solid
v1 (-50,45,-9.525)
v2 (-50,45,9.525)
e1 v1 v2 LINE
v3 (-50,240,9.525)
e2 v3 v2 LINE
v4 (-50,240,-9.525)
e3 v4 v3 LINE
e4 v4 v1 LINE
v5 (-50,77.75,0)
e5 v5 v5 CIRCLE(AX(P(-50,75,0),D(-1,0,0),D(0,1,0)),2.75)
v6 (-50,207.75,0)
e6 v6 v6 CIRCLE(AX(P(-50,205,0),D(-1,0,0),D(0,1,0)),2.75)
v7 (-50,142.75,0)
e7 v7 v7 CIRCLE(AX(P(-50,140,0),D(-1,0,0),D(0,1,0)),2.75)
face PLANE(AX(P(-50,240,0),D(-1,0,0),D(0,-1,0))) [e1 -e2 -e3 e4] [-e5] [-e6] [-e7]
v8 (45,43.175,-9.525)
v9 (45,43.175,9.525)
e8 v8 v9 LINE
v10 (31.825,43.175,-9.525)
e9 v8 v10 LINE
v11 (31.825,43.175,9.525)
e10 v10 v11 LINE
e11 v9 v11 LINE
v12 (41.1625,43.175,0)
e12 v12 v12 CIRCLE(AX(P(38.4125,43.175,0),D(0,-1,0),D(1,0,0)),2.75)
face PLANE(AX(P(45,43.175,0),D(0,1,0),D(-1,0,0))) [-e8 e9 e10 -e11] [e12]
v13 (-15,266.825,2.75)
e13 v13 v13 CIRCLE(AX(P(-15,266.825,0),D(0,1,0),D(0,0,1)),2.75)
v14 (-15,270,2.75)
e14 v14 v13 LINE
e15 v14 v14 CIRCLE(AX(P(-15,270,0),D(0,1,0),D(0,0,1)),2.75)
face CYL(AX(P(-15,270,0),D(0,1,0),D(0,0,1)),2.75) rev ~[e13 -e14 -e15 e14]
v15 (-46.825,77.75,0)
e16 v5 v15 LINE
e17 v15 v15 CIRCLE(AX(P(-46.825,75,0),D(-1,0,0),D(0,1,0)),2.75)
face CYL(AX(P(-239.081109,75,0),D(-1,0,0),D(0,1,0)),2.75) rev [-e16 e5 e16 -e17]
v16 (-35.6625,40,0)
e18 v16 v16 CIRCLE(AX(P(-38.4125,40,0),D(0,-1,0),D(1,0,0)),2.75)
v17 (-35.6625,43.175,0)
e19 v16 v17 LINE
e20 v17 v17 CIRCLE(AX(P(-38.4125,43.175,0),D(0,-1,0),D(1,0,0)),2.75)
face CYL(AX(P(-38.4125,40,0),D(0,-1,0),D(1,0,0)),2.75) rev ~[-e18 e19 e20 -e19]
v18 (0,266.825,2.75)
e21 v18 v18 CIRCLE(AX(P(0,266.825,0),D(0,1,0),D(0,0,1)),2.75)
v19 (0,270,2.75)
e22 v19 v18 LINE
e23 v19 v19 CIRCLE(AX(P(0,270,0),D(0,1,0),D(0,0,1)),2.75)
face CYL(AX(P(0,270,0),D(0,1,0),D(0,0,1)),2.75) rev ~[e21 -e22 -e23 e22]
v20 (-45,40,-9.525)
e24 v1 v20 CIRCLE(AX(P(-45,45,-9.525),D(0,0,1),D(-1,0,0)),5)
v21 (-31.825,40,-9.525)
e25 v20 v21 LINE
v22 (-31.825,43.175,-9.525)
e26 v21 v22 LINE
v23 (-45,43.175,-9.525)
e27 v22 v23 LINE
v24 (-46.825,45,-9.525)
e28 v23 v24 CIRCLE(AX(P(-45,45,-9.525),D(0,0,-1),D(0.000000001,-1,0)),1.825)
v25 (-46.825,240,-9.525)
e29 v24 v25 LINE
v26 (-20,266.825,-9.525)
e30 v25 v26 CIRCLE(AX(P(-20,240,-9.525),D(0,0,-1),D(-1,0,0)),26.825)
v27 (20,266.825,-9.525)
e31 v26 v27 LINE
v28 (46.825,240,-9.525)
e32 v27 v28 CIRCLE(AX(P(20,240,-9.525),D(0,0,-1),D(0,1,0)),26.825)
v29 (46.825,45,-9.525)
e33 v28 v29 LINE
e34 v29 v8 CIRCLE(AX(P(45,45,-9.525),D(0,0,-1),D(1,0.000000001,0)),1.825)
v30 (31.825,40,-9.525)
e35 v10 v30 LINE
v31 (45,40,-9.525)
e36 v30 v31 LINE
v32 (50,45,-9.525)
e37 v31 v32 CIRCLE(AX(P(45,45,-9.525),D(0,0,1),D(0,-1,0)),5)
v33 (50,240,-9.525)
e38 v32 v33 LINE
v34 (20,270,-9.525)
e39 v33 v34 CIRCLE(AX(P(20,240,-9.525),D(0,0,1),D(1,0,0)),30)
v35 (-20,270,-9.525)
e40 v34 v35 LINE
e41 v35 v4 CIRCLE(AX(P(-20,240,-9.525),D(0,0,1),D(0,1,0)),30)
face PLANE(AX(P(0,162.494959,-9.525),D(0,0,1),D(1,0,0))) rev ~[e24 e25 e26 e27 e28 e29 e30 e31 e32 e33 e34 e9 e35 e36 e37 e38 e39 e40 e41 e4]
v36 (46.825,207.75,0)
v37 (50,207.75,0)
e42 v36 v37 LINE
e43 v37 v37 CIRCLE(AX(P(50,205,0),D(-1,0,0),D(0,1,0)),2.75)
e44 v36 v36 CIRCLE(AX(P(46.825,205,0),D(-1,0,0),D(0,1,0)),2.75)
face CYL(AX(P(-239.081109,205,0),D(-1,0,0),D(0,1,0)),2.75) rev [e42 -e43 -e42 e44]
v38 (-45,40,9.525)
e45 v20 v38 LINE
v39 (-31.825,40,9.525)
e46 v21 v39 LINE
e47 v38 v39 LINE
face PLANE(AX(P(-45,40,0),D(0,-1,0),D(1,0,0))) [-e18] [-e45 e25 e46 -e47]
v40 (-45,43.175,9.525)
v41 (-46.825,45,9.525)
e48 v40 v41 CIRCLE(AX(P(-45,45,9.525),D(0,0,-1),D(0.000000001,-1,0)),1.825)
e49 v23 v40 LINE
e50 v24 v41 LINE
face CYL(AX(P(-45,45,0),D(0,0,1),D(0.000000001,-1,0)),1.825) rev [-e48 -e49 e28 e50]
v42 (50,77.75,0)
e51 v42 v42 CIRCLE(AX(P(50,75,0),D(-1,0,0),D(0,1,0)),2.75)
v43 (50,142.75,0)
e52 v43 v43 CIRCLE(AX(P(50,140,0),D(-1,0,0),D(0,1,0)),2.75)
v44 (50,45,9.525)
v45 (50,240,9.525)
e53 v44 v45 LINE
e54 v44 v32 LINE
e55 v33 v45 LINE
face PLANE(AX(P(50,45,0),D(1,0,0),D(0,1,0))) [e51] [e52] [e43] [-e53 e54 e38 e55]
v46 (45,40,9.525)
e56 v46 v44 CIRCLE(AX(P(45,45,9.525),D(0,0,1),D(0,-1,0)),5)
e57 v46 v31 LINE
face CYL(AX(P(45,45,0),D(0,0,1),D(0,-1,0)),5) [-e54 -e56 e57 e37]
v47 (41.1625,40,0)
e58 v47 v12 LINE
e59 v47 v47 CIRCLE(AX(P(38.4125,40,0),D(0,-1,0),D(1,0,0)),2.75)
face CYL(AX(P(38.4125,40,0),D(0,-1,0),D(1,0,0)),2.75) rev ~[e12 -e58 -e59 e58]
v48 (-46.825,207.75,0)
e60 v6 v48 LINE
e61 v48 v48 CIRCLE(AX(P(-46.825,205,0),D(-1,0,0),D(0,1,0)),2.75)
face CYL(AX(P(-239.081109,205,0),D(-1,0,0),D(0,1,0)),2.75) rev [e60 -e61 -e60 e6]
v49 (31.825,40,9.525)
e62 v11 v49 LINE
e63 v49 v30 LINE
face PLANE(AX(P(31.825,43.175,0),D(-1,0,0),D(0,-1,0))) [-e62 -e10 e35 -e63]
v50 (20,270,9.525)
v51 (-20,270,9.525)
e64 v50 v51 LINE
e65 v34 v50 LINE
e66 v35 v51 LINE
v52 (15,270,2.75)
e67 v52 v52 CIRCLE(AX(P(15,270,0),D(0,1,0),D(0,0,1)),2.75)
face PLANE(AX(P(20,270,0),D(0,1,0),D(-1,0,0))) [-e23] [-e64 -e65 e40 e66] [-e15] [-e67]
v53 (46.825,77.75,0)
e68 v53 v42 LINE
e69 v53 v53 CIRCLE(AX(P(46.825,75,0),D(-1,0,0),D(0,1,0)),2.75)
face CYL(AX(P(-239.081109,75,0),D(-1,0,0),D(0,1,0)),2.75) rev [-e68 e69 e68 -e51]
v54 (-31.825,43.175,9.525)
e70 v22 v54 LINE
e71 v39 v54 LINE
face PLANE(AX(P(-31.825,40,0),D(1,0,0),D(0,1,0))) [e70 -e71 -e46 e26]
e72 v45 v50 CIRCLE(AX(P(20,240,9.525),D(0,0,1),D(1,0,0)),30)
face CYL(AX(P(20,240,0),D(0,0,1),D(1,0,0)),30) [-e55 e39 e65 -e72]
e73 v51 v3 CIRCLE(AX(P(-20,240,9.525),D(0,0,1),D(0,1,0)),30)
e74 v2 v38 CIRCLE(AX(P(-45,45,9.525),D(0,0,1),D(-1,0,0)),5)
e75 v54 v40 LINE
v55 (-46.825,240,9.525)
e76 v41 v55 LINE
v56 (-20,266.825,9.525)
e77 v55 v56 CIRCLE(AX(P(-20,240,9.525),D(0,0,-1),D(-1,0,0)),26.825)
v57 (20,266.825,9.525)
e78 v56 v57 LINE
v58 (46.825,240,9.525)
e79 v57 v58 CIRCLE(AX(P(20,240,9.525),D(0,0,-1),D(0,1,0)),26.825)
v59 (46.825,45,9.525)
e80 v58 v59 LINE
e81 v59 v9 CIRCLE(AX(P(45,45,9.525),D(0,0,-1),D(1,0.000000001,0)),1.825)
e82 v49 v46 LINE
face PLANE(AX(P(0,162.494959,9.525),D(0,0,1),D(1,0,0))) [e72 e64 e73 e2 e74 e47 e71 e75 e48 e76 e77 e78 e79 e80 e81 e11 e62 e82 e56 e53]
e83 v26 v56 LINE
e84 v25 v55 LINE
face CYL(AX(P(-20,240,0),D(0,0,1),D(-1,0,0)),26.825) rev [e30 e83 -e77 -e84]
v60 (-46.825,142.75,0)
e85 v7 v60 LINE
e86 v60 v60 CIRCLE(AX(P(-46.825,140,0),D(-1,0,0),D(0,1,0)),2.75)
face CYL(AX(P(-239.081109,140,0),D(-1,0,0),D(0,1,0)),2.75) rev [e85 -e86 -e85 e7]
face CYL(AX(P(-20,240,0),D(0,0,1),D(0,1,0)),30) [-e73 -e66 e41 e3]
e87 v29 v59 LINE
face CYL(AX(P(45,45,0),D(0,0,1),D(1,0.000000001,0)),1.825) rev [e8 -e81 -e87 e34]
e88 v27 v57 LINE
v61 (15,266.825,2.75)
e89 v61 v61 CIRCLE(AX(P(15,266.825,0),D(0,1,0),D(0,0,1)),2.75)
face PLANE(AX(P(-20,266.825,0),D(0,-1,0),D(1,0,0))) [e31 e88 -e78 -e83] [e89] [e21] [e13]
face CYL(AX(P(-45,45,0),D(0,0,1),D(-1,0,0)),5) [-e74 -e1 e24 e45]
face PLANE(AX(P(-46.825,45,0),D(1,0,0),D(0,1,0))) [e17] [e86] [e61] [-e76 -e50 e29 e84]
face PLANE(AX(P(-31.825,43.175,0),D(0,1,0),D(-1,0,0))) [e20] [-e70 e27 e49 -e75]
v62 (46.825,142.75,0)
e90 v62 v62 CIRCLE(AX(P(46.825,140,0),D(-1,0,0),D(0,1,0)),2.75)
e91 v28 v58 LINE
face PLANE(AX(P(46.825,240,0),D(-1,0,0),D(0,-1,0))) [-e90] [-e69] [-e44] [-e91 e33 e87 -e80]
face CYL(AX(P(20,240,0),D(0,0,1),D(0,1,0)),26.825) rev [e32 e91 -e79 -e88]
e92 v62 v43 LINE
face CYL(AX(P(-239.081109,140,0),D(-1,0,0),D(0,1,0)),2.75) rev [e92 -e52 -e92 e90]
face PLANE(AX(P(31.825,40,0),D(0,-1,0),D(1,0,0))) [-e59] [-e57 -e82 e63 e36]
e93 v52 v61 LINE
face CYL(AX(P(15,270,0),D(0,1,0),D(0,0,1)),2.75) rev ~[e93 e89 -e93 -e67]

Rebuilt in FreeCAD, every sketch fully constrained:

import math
import FreeCAD as App
import Part
import Sketcher

V = App.Vector
Q = App.Units.Quantity

doc = App.newDocument("Part")
body = doc.addObject("PartDesign::Body", "Body")

sketch1 = body.newObject("Sketcher::SketchObject", "Sketch")
sketch1.AttachmentSupport = (doc.getObject("XY_Plane"), [""])
sketch1.MapMode = "FlatFace"
sketch1.addGeometry(Part.LineSegment(V(50, 45, 0), V(50, 240, 0)), False)
sketch1.addGeometry(Part.ArcOfCircle(Part.Circle(V(20, 240, 0), V(0, 0, 1), 30), math.radians(0), math.radians(90)), False)
sketch1.addGeometry(Part.LineSegment(V(20, 270, 0), V(-20, 270, 0)), False)
sketch1.addGeometry(Part.ArcOfCircle(Part.Circle(V(-20, 240, 0), V(0, 0, 1), 30), math.radians(90), math.radians(180)), False)
sketch1.addGeometry(Part.LineSegment(V(-50, 240, 0), V(-50, 45, 0)), False)
sketch1.addGeometry(Part.ArcOfCircle(Part.Circle(V(-45, 45, 0), V(0, 0, 1), 5), math.radians(180), math.radians(270)), False)
sketch1.addGeometry(Part.LineSegment(V(-45, 40, 0), V(-31.8, 40, 0)), False)
sketch1.addGeometry(Part.LineSegment(V(-31.8, 40, 0), V(-31.8, 43.2, 0)), False)
sketch1.addGeometry(Part.LineSegment(V(-31.8, 43.2, 0), V(-45, 43.2, 0)), False)
sketch1.addGeometry(Part.ArcOfCircle(Part.Circle(V(-45, 45, 0), V(0, 0, 1), 1.8), math.radians(180), math.radians(270)), False)
sketch1.addGeometry(Part.LineSegment(V(-46.8, 45, 0), V(-46.8, 240, 0)), False)
sketch1.addGeometry(Part.ArcOfCircle(Part.Circle(V(-20, 240, 0), V(0, 0, 1), 26.8), math.radians(90), math.radians(180)), False)
sketch1.addGeometry(Part.LineSegment(V(-20, 266.8, 0), V(20, 266.8, 0)), False)
sketch1.addGeometry(Part.ArcOfCircle(Part.Circle(V(20, 240, 0), V(0, 0, 1), 26.8), math.radians(0), math.radians(90)), False)
sketch1.addGeometry(Part.LineSegment(V(46.8, 240, 0), V(46.8, 45, 0)), False)
sketch1.addGeometry(Part.ArcOfCircle(Part.Circle(V(45, 45, 0), V(0, 0, 1), 1.8), math.radians(-90), math.radians(0)), False)
sketch1.addGeometry(Part.LineSegment(V(45, 43.2, 0), V(31.8, 43.2, 0)), False)
sketch1.addGeometry(Part.LineSegment(V(31.8, 43.2, 0), V(31.8, 40, 0)), False)
sketch1.addGeometry(Part.LineSegment(V(31.8, 40, 0), V(45, 40, 0)), False)
sketch1.addGeometry(Part.ArcOfCircle(Part.Circle(V(45, 45, 0), V(0, 0, 1), 5), math.radians(-90), math.radians(0)), False)
sketch1.addConstraint(Sketcher.Constraint("Tangent", 0, 2, 1, 1))
sketch1.addConstraint(Sketcher.Constraint("Tangent", 1, 2, 2, 1))
sketch1.addConstraint(Sketcher.Constraint("Tangent", 2, 2, 3, 1))
sketch1.addConstraint(Sketcher.Constraint("Tangent", 3, 2, 4, 1))
sketch1.addConstraint(Sketcher.Constraint("Tangent", 4, 2, 5, 1))
sketch1.addConstraint(Sketcher.Constraint("Tangent", 5, 2, 6, 1))
sketch1.addConstraint(Sketcher.Constraint("Coincident", 6, 2, 7, 1))
sketch1.addConstraint(Sketcher.Constraint("Coincident", 7, 2, 8, 1))
sketch1.addConstraint(Sketcher.Constraint("Tangent", 8, 2, 9, 2))
sketch1.addConstraint(Sketcher.Constraint("Tangent", 9, 1, 10, 1))
sketch1.addConstraint(Sketcher.Constraint("Tangent", 10, 2, 11, 2))
sketch1.addConstraint(Sketcher.Constraint("Tangent", 11, 1, 12, 1))
sketch1.addConstraint(Sketcher.Constraint("Tangent", 12, 2, 13, 2))
sketch1.addConstraint(Sketcher.Constraint("Tangent", 13, 1, 14, 1))
sketch1.addConstraint(Sketcher.Constraint("Tangent", 14, 2, 15, 2))
sketch1.addConstraint(Sketcher.Constraint("Tangent", 15, 1, 16, 1))
sketch1.addConstraint(Sketcher.Constraint("Coincident", 16, 2, 17, 1))
sketch1.addConstraint(Sketcher.Constraint("Coincident", 17, 2, 18, 1))
sketch1.addConstraint(Sketcher.Constraint("Tangent", 18, 2, 19, 1))
sketch1.addConstraint(Sketcher.Constraint("Tangent", 19, 2, 0, 1))
sketch1.addConstraint(Sketcher.Constraint("Vertical", 0))
sketch1.addConstraint(Sketcher.Constraint("Horizontal", 2))
sketch1.addConstraint(Sketcher.Constraint("Vertical", 4))
sketch1.addConstraint(Sketcher.Constraint("Horizontal", 6))
sketch1.addConstraint(Sketcher.Constraint("Vertical", 7))
sketch1.addConstraint(Sketcher.Constraint("Horizontal", 8))
sketch1.addConstraint(Sketcher.Constraint("Vertical", 10))
sketch1.addConstraint(Sketcher.Constraint("Horizontal", 12))
sketch1.addConstraint(Sketcher.Constraint("Vertical", 14))
sketch1.addConstraint(Sketcher.Constraint("Horizontal", 16))
sketch1.addConstraint(Sketcher.Constraint("Vertical", 17))
sketch1.addConstraint(Sketcher.Constraint("Horizontal", 18))
sketch1.addConstraint(Sketcher.Constraint("Coincident", 9, 3, 5, 3))
sketch1.addConstraint(Sketcher.Constraint("Coincident", 11, 3, 3, 3))
sketch1.addConstraint(Sketcher.Constraint("Coincident", 13, 3, 1, 3))
sketch1.addConstraint(Sketcher.Constraint("Coincident", 19, 3, 15, 3))
sketch1.addConstraint(Sketcher.Constraint("Equal", 1, 3))
sketch1.addConstraint(Sketcher.Constraint("Equal", 9, 15))
sketch1.addConstraint(Sketcher.Constraint("Symmetric", 5, 3, 15, 3, -2))
sketch1.addConstraint(Sketcher.Constraint("Equal", 8, 16))
sketch1.addConstraint(Sketcher.Constraint("Radius", 1, Q("30 mm")))
sketch1.addConstraint(Sketcher.Constraint("Radius", 5, Q("5 mm")))
sketch1.addConstraint(Sketcher.Constraint("DistanceX", 2, 2, 2, 1, Q("40 mm")))
sketch1.addConstraint(Sketcher.Constraint("DistanceY", 0, 1, 0, 2, Q("195 mm")))
sketch1.addConstraint(Sketcher.Constraint("DistanceY", -1, 1, 1, 3, Q("240 mm")))
sketch1.addConstraint(Sketcher.Constraint("Radius", 9, Q("1.825 mm")))
sketch1.addConstraint(Sketcher.Constraint("DistanceX", 16, 2, 14, 2, Q("15 mm")))
pad1 = body.newObject("PartDesign::Pad", "Pad")
pad1.Profile = sketch1
pad1.Length = 19.05
pad1.Midplane = True

sketch2 = body.newObject("Sketcher::SketchObject", "Sketch001")
sketch2.AttachmentSupport = (doc.getObject("XZ_Plane"), [""])
sketch2.MapMode = "FlatFace"
sketch2.AttachmentOffset = App.Placement(V(0, 0, -270), App.Rotation())
sketch2.addGeometry(Part.Circle(V(0, 0, 0), V(0, 0, 1), 2.8), False)
sketch2.addGeometry(Part.Circle(V(-15, 0, 0), V(0, 0, 1), 2.8), False)
sketch2.addGeometry(Part.Circle(V(15, 0, 0), V(0, 0, 1), 2.8), False)
sketch2.addConstraint(Sketcher.Constraint("Coincident", 0, 3, -1, 1))
sketch2.addConstraint(Sketcher.Constraint("Equal", 0, 1))
sketch2.addConstraint(Sketcher.Constraint("Equal", 1, 2))
sketch2.addConstraint(Sketcher.Constraint("Symmetric", 1, 3, 2, 3, -1, 1))
sketch2.addConstraint(Sketcher.Constraint("PointOnObject", 1, 3, -1))
sketch2.addConstraint(Sketcher.Constraint("Diameter", 0, Q("5.5 mm")))
sketch2.addConstraint(Sketcher.Constraint("DistanceX", 1, 3, -1, 1, Q("15 mm")))
pocket1 = body.newObject("PartDesign::Pocket", "Pocket")
pocket1.Profile = sketch2
pocket1.Type = "ThroughAll"
pocket1.Reversed = True

sketch3 = body.newObject("Sketcher::SketchObject", "Sketch002")
sketch3.AttachmentSupport = (doc.getObject("YZ_Plane"), [""])
sketch3.MapMode = "FlatFace"
sketch3.AttachmentOffset = App.Placement(V(0, 0, 50), App.Rotation())
sketch3.addGeometry(Part.Circle(V(205, 0, 0), V(0, 0, 1), 2.8), False)
sketch3.addGeometry(Part.Circle(V(140, 0, 0), V(0, 0, 1), 2.8), False)
sketch3.addGeometry(Part.Circle(V(75, 0, 0), V(0, 0, 1), 2.8), False)
sketch3.addConstraint(Sketcher.Constraint("Equal", 0, 1))
sketch3.addConstraint(Sketcher.Constraint("Equal", 1, 2))
sketch3.addConstraint(Sketcher.Constraint("PointOnObject", 0, 3, -1))
sketch3.addConstraint(Sketcher.Constraint("PointOnObject", 1, 3, -1))
sketch3.addConstraint(Sketcher.Constraint("PointOnObject", 2, 3, -1))
sketch3.addConstraint(Sketcher.Constraint("Diameter", 0, Q("5.5 mm")))
sketch3.addConstraint(Sketcher.Constraint("DistanceX", -1, 1, 0, 3, Q("205 mm")))
sketch3.addConstraint(Sketcher.Constraint("DistanceX", -1, 1, 1, 3, Q("140 mm")))
sketch3.addConstraint(Sketcher.Constraint("DistanceX", -1, 1, 2, 3, Q("75 mm")))
pocket2 = body.newObject("PartDesign::Pocket", "Pocket001")
pocket2.Profile = sketch3
pocket2.Type = "ThroughAll"
pocket2.Midplane = True

sketch4 = body.newObject("Sketcher::SketchObject", "Sketch003")
sketch4.AttachmentSupport = (doc.getObject("XZ_Plane"), [""])
sketch4.MapMode = "FlatFace"
sketch4.AttachmentOffset = App.Placement(V(0, 0, -40), App.Rotation())
sketch4.addGeometry(Part.Circle(V(-38.4, 0, 0), V(0, 0, 1), 2.8), False)
sketch4.addConstraint(Sketcher.Constraint("PointOnObject", 0, 3, -1))
sketch4.addConstraint(Sketcher.Constraint("Diameter", 0, Q("5.5 mm")))
sketch4.addConstraint(Sketcher.Constraint("DistanceX", 0, 3, -1, 1, Q("38.4125 mm")))
pocket3 = body.newObject("PartDesign::Pocket", "Pocket002")
pocket3.Profile = sketch4
pocket3.Type = "UpToFirst"

sketch5 = body.newObject("Sketcher::SketchObject", "Sketch004")
sketch5.AttachmentSupport = (doc.getObject("XZ_Plane"), [""])
sketch5.MapMode = "FlatFace"
sketch5.AttachmentOffset = App.Placement(V(0, 0, -40), App.Rotation())
sketch5.addGeometry(Part.Circle(V(38.4, 0, 0), V(0, 0, 1), 2.8), False)
sketch5.addConstraint(Sketcher.Constraint("PointOnObject", 0, 3, -1))
sketch5.addConstraint(Sketcher.Constraint("Diameter", 0, Q("5.5 mm")))
sketch5.addConstraint(Sketcher.Constraint("DistanceX", -1, 1, 0, 3, Q("38.4125 mm")))
pocket4 = body.newObject("PartDesign::Pocket", "Pocket003")
pocket4.Profile = sketch5
pocket4.Type = "UpToFirst"

doc.recompute()
